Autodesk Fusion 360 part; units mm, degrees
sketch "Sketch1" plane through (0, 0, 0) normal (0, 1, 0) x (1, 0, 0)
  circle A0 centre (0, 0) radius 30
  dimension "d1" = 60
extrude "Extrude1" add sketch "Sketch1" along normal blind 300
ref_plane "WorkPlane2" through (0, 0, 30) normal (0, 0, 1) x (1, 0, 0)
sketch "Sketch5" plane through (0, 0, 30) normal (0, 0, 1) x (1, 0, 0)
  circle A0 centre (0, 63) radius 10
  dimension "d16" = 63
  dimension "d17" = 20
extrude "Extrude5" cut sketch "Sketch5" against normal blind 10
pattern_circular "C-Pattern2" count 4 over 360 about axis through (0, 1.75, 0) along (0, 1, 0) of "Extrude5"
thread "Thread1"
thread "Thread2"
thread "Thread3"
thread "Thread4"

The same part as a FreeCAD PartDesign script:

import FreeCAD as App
import Part
import Sketcher

doc = App.newDocument("Part")
body = doc.addObject("PartDesign::Body", "Body")

sketch1 = body.newObject("Sketcher::SketchObject", "Sketch")
sketch1.AttachmentSupport = (doc.getObject("XZ_Plane"), [""])
sketch1.MapMode = "FlatFace"
sketch1.addGeometry(Part.Circle(App.Vector(0, 0, 0), App.Vector(0, 0, 1), 30), False)
sketch1.addConstraint([
    Sketcher.Constraint("Coincident", 0, 3, -1, 1),
    Sketcher.Constraint("Diameter", 0, 60.0),
])
pad1 = body.newObject("PartDesign::Pad", "Pad")
pad1.Profile = sketch1
pad1.Length = 300
pad1.Reversed = True

sketch2 = body.newObject("Sketcher::SketchObject", "Sketch001")
sketch2.AttachmentSupport = (doc.getObject("XY_Plane"), [""])
sketch2.MapMode = "FlatFace"
sketch2.AttachmentOffset = App.Placement(App.Vector(0, 0, 30), App.Rotation())
sketch2.addGeometry(Part.Circle(App.Vector(0, 63, 0), App.Vector(0, 0, 1), 10), False)
sketch2.addConstraint([
    Sketcher.Constraint("PointOnObject", 0, 3, -2),
    Sketcher.Constraint("Diameter", 0, 20.0),
    Sketcher.Constraint("DistanceY", -1, 1, 0, 3, 63.0),
])
pocket1 = body.newObject("PartDesign::Pocket", "Pocket")
pocket1.Profile = sketch2
pocket1.Length = 10
doc.recompute()

polarpattern = body.newObject("PartDesign::PolarPattern", "PolarPattern")
polarpattern.Originals = [pocket1]
polarpattern.Axis = (doc.getObject("Y_Axis"), [""])
polarpattern.Angle = 360
polarpattern.Occurrences = 4
body.Tip = polarpattern

doc.recompute()
